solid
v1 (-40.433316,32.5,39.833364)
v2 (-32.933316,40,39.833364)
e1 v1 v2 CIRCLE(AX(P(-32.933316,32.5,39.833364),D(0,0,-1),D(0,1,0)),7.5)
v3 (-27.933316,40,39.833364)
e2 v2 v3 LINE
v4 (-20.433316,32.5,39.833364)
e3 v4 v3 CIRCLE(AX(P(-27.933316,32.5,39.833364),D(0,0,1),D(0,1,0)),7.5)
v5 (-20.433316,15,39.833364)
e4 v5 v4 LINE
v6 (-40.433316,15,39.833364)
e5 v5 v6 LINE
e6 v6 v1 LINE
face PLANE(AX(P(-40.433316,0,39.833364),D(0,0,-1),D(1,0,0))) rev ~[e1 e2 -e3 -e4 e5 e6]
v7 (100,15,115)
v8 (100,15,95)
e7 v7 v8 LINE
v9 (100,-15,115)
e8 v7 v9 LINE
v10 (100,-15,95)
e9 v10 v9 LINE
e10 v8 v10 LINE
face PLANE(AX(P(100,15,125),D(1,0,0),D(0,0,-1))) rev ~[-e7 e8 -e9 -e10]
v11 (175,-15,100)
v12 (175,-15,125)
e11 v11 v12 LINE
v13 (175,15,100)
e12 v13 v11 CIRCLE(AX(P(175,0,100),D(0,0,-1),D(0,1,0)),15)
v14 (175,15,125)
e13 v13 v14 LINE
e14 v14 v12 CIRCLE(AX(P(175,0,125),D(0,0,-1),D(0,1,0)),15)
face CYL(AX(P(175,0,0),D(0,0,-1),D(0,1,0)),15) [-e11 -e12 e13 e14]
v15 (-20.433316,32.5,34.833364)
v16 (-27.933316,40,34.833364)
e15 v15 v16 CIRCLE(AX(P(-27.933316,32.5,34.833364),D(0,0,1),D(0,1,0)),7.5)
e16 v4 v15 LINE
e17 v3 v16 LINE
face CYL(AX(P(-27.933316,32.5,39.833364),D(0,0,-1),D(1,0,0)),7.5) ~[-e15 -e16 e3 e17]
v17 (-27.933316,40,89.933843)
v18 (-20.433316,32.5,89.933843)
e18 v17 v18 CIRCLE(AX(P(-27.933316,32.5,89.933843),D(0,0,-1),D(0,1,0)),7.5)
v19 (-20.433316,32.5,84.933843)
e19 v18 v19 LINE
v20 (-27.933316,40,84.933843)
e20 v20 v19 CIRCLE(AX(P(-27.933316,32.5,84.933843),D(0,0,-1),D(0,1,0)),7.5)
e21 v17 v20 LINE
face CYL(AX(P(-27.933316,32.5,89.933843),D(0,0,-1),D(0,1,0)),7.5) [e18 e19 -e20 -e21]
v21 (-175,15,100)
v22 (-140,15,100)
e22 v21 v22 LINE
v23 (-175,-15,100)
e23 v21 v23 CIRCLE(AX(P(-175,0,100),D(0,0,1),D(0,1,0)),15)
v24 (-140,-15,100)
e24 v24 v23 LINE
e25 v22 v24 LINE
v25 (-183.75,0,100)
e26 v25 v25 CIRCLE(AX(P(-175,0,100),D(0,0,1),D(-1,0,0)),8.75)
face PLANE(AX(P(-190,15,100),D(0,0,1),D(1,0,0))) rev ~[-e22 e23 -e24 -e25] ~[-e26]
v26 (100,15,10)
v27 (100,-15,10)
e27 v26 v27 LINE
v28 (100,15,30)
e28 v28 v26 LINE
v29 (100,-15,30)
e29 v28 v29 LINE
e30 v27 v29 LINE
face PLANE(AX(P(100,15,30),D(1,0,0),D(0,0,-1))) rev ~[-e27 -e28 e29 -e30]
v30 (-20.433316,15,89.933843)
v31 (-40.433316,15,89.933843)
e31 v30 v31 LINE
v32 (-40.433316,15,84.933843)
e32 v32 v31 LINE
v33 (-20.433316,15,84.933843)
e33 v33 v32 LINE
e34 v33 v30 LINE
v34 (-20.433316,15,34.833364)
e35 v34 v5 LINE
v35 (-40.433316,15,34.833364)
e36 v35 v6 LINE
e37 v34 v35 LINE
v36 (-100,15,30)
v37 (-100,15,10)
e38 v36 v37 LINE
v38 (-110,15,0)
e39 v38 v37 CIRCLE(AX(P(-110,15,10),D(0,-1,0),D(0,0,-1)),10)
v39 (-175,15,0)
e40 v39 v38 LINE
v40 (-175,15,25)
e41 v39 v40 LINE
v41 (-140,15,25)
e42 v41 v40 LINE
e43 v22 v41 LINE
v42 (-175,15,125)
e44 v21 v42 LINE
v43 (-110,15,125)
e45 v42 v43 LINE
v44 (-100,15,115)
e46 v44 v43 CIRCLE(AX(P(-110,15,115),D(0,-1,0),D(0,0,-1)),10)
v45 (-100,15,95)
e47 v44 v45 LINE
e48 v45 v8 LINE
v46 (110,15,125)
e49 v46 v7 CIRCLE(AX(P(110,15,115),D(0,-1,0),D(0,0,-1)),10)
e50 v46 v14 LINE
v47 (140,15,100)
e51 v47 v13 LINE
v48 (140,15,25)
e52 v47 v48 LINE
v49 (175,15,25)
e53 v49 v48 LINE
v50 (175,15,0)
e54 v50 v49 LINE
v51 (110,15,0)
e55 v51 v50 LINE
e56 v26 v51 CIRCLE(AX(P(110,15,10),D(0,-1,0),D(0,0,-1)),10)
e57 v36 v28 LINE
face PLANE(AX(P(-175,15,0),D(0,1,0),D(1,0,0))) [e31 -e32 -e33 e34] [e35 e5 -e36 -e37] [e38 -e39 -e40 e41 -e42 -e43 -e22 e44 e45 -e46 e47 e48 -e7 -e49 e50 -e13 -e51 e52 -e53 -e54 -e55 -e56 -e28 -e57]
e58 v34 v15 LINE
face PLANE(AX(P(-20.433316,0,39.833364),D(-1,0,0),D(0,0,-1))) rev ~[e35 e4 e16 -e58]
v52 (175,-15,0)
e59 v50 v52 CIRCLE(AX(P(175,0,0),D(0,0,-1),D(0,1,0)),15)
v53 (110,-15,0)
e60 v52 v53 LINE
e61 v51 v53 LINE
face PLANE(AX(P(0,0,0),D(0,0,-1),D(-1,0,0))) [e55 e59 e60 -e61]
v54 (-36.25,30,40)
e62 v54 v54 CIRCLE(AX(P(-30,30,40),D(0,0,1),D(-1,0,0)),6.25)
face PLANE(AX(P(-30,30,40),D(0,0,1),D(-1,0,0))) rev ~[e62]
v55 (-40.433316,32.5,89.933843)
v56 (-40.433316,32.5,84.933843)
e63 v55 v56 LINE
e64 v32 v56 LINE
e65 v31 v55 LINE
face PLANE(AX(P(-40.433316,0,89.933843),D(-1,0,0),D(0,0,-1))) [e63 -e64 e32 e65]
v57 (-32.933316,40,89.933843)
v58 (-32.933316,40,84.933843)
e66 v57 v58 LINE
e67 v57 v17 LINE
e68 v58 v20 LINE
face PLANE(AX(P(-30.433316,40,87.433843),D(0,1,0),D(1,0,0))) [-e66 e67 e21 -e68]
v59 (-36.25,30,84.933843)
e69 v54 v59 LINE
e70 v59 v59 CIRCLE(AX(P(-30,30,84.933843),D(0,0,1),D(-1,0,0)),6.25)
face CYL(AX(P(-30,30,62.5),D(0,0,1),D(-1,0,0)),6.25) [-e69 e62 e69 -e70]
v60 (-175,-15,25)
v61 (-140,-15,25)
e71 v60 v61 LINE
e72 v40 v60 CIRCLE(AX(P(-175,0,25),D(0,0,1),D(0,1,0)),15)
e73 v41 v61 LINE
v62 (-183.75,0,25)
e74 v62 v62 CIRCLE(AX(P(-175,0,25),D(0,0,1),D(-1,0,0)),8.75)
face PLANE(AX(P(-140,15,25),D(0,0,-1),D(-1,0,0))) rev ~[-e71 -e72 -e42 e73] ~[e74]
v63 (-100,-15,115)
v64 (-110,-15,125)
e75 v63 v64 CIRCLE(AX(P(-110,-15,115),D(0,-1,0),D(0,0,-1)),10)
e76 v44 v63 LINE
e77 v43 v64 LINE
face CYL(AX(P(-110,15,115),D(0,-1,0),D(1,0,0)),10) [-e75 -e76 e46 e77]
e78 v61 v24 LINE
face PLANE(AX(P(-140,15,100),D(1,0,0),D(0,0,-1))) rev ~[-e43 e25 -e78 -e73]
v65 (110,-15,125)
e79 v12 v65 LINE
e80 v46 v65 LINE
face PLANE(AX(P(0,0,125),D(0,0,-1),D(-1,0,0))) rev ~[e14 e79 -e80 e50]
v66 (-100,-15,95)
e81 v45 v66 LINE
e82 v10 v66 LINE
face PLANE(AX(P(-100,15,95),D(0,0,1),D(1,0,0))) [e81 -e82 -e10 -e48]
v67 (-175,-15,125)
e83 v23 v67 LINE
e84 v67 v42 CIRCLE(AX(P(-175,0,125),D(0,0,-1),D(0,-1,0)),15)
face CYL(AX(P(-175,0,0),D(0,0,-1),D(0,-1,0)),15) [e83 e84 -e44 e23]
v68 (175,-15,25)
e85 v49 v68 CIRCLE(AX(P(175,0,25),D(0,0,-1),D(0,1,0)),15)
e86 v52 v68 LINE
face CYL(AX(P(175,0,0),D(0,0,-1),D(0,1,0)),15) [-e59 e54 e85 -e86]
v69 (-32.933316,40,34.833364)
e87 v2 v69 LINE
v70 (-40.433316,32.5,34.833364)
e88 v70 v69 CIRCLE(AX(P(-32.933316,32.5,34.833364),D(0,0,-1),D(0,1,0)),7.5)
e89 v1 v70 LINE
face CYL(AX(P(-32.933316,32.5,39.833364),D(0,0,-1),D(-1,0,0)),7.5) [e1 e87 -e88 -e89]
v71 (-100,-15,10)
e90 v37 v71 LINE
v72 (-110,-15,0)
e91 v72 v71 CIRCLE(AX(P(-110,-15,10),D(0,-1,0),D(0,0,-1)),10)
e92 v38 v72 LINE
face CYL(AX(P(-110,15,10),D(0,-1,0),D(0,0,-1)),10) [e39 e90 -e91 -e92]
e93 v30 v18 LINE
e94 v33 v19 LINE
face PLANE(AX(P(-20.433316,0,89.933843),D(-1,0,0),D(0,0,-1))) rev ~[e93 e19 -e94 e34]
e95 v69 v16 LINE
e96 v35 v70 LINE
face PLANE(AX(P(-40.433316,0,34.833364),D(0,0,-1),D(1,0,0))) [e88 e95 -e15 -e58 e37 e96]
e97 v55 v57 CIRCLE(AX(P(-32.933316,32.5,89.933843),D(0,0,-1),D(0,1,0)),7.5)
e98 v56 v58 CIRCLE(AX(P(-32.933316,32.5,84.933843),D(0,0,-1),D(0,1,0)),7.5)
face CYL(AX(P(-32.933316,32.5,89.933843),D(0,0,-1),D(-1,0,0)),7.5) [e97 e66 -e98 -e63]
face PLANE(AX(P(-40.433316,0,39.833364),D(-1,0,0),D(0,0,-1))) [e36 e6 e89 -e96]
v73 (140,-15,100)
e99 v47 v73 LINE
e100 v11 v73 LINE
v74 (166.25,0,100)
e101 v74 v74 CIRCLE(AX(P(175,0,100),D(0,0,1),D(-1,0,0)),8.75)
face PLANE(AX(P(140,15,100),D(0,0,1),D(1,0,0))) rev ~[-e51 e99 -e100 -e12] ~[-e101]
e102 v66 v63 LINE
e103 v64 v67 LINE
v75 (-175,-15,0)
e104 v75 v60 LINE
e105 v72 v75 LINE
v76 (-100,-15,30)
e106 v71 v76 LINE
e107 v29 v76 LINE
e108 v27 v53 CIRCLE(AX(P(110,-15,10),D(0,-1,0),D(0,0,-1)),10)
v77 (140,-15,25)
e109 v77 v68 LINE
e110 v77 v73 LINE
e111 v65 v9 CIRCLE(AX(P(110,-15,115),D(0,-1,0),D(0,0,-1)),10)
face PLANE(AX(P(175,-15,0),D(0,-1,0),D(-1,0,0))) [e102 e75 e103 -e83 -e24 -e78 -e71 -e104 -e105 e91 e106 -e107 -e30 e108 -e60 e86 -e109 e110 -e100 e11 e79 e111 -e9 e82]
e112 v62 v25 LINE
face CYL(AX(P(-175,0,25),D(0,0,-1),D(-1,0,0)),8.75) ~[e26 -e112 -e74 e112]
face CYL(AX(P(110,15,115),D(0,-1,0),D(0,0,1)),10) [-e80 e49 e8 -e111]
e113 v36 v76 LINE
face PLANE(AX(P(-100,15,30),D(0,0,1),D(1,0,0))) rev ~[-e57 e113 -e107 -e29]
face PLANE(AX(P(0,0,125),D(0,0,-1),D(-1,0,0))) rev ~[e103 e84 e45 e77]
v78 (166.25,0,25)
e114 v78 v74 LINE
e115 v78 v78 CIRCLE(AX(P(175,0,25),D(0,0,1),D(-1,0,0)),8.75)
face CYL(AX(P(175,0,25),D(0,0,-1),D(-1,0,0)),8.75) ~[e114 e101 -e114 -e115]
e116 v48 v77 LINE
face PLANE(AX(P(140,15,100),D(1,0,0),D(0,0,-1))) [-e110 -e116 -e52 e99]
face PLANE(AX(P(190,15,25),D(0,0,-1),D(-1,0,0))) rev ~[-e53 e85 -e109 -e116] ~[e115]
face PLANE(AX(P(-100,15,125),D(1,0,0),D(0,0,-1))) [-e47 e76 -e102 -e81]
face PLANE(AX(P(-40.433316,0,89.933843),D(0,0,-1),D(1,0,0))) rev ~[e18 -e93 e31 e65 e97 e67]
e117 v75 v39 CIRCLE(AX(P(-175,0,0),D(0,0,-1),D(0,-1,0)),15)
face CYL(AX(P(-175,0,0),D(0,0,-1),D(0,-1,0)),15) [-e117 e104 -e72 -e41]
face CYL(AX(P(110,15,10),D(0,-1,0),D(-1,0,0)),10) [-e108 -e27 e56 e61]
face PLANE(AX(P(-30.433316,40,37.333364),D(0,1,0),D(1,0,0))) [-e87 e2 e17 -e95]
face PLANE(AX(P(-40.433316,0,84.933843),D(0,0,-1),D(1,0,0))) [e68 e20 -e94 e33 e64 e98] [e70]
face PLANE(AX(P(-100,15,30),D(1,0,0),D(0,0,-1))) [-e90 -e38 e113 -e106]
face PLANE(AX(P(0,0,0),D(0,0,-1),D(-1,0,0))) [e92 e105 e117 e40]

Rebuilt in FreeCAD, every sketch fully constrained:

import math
import FreeCAD as App
import Part
import Sketcher
Q = App.Units.Quantity


def edges_at(feature, points):
    """Names of the edges that pass closest to the given points."""
    edges = feature.Shape.Edges
    near = lambda p: min(range(len(edges)), key=lambda i: edges[i].distToShape(Part.Vertex(*p))[0])
    return sorted({f"Edge{near(p) + 1}" for p in points})

doc = App.newDocument("Part")
body = doc.addObject("PartDesign::Body", "Body")

# Sketch on XY plane
sketch1 = body.newObject("Sketcher::SketchObject", "Sketch")
sketch1.AttachmentSupport = (doc.getObject("XY_Plane"), [""])
sketch1.MapMode = "FlatFace"
sketch1.addGeometry(Part.LineSegment(App.Vector(175, 15, 0), App.Vector(-175, 15, 0)), False)
sketch1.addGeometry(Part.ArcOfCircle(Part.Circle(App.Vector(-175, 0, 0), App.Vector(0, 0, 1), 15), math.radians(90), math.radians(270)), False)
sketch1.addGeometry(Part.LineSegment(App.Vector(-175, -15, 0), App.Vector(175, -15, 0)), False)
sketch1.addGeometry(Part.ArcOfCircle(Part.Circle(App.Vector(175, 0, 0), App.Vector(0, 0, 1), 15), math.radians(-90), math.radians(90)), False)
sketch1.addConstraint(Sketcher.Constraint("Tangent", 0, 2, 1, 1))
sketch1.addConstraint(Sketcher.Constraint("Tangent", 1, 2, 2, 1))
sketch1.addConstraint(Sketcher.Constraint("Tangent", 2, 2, 3, 1))
sketch1.addConstraint(Sketcher.Constraint("Tangent", 3, 2, 0, 1))
sketch1.addConstraint(Sketcher.Constraint("Horizontal", 0))
sketch1.addConstraint(Sketcher.Constraint("Horizontal", 2))
sketch1.addConstraint(Sketcher.Constraint("Symmetric", 1, 3, 3, 3, -1, 1))
sketch1.addConstraint(Sketcher.Constraint("Radius", 1, Q("15 mm")))
sketch1.addConstraint(Sketcher.Constraint("DistanceX", 0, 2, 0, 1, Q("350 mm")))
pad1 = body.newObject("PartDesign::Pad", "Pad")
pad1.Profile = sketch1
pad1.Length = 125

# Sketch on XZ plane
sketch2 = body.newObject("Sketcher::SketchObject", "Sketch001")
sketch2.AttachmentSupport = (doc.getObject("XZ_Plane"), [""])
sketch2.MapMode = "FlatFace"
sketch2.AttachmentOffset = App.Placement(App.Vector(0, 0, -15), App.Rotation())
sketch2.addGeometry(Part.LineSegment(App.Vector(-140, 100, 0), App.Vector(-140, 25, 0)), False)
sketch2.addGeometry(Part.LineSegment(App.Vector(-140, 25, 0), App.Vector(-190, 25, 0)), False)
sketch2.addGeometry(Part.LineSegment(App.Vector(-190, 25, 0), App.Vector(-190, 100, 0)), False)
sketch2.addGeometry(Part.LineSegment(App.Vector(-190, 100, 0), App.Vector(-140, 100, 0)), False)
sketch2.addGeometry(Part.LineSegment(App.Vector(190, 100, 0), App.Vector(190, 25, 0)), False)
sketch2.addGeometry(Part.LineSegment(App.Vector(190, 25, 0), App.Vector(140, 25, 0)), False)
sketch2.addGeometry(Part.LineSegment(App.Vector(140, 25, 0), App.Vector(140, 100, 0)), False)
sketch2.addGeometry(Part.LineSegment(App.Vector(140, 100, 0), App.Vector(190, 100, 0)), False)
sketch2.addConstraint(Sketcher.Constraint("Coincident", 0, 2, 1, 1))
sketch2.addConstraint(Sketcher.Constraint("Coincident", 1, 2, 2, 1))
sketch2.addConstraint(Sketcher.Constraint("Coincident", 2, 2, 3, 1))
sketch2.addConstraint(Sketcher.Constraint("Coincident", 3, 2, 0, 1))
sketch2.addConstraint(Sketcher.Constraint("Coincident", 4, 2, 5, 1))
sketch2.addConstraint(Sketcher.Constraint("Coincident", 5, 2, 6, 1))
sketch2.addConstraint(Sketcher.Constraint("Coincident", 6, 2, 7, 1))
sketch2.addConstraint(Sketcher.Constraint("Coincident", 7, 2, 4, 1))
sketch2.addConstraint(Sketcher.Constraint("Vertical", 0))
sketch2.addConstraint(Sketcher.Constraint("Horizontal", 1))
sketch2.addConstraint(Sketcher.Constraint("Vertical", 2))
sketch2.addConstraint(Sketcher.Constraint("Horizontal", 3))
sketch2.addConstraint(Sketcher.Constraint("Vertical", 4))
sketch2.addConstraint(Sketcher.Constraint("Horizontal", 5))
sketch2.addConstraint(Sketcher.Constraint("Vertical", 6))
sketch2.addConstraint(Sketcher.Constraint("Horizontal", 7))
sketch2.addConstraint(Sketcher.Constraint("Symmetric", 1, 2, 4, 2, -2))
sketch2.addConstraint(Sketcher.Constraint("Symmetric", 3, 2, 6, 2, -2))
sketch2.addConstraint(Sketcher.Constraint("DistanceX", 1, 2, 1, 1, Q("50 mm")))
sketch2.addConstraint(Sketcher.Constraint("DistanceY", 0, 2, 0, 1, Q("75 mm")))
sketch2.addConstraint(Sketcher.Constraint("DistanceX", 0, 2, -1, 1, Q("140 mm")))
sketch2.addConstraint(Sketcher.Constraint("DistanceY", -1, 1, 0, 2, Q("25 mm")))
pocket1 = body.newObject("PartDesign::Pocket", "Pocket")
pocket1.Profile = sketch2
pocket1.Length = 100
pocket1.Reversed = True

# Sketch on XY plane
sketch3 = body.newObject("Sketcher::SketchObject", "Sketch002")
sketch3.AttachmentSupport = (doc.getObject("XY_Plane"), [""])
sketch3.MapMode = "FlatFace"
sketch3.AttachmentOffset = App.Placement(App.Vector(0, 0, 25), App.Rotation())
sketch3.addGeometry(Part.Circle(App.Vector(-175, 0, 0), App.Vector(0, 0, 1), 9), False)
sketch3.addGeometry(Part.Circle(App.Vector(175, 0, 0), App.Vector(0, 0, 1), 9), False)
sketch3.addConstraint(Sketcher.Constraint("Equal", 0, 1))
sketch3.addConstraint(Sketcher.Constraint("Symmetric", 0, 3, 1, 3, -1, 1))
sketch3.addConstraint(Sketcher.Constraint("PointOnObject", 0, 3, -1))
sketch3.addConstraint(Sketcher.Constraint("Diameter", 0, Q("17.5 mm")))
sketch3.addConstraint(Sketcher.Constraint("DistanceX", 0, 3, -1, 1, Q("175 mm")))
pad2 = body.newObject("PartDesign::Pad", "Pad001")
pad2.Profile = sketch3
pad2.Length = 75

# Sketch on XZ plane
sketch4 = body.newObject("Sketcher::SketchObject", "Sketch003")
sketch4.AttachmentSupport = (doc.getObject("XZ_Plane"), [""])
sketch4.MapMode = "FlatFace"
sketch4.AttachmentOffset = App.Placement(App.Vector(0, 0, -15), App.Rotation())
sketch4.addGeometry(Part.LineSegment(App.Vector(-100, 0, 0), App.Vector(-100, 30, 0)), False)
sketch4.addGeometry(Part.LineSegment(App.Vector(-100, 30, 0), App.Vector(100, 30, 0)), False)
sketch4.addGeometry(Part.LineSegment(App.Vector(100, 30, 0), App.Vector(100, 0, 0)), False)
sketch4.addGeometry(Part.LineSegment(App.Vector(100, 0, 0), App.Vector(-100, 0, 0)), False)
sketch4.addGeometry(Part.LineSegment(App.Vector(-100, 95, 0), App.Vector(-100, 125, 0)), False)
sketch4.addGeometry(Part.LineSegment(App.Vector(-100, 125, 0), App.Vector(100, 125, 0)), False)
sketch4.addGeometry(Part.LineSegment(App.Vector(100, 125, 0), App.Vector(100, 95, 0)), False)
sketch4.addGeometry(Part.LineSegment(App.Vector(100, 95, 0), App.Vector(-100, 95, 0)), False)
sketch4.addConstraint(Sketcher.Constraint("Coincident", 0, 2, 1, 1))
sketch4.addConstraint(Sketcher.Constraint("Coincident", 1, 2, 2, 1))
sketch4.addConstraint(Sketcher.Constraint("Coincident", 2, 2, 3, 1))
sketch4.addConstraint(Sketcher.Constraint("Coincident", 3, 2, 0, 1))
sketch4.addConstraint(Sketcher.Constraint("Coincident", 4, 2, 5, 1))
sketch4.addConstraint(Sketcher.Constraint("Coincident", 5, 2, 6, 1))
sketch4.addConstraint(Sketcher.Constraint("Coincident", 6, 2, 7, 1))
sketch4.addConstraint(Sketcher.Constraint("Coincident", 7, 2, 4, 1))
sketch4.addConstraint(Sketcher.Constraint("Vertical", 0))
sketch4.addConstraint(Sketcher.Constraint("Horizontal", 1))
sketch4.addConstraint(Sketcher.Constraint("Vertical", 2))
sketch4.addConstraint(Sketcher.Constraint("Horizontal", 3))
sketch4.addConstraint(Sketcher.Constraint("Vertical", 4))
sketch4.addConstraint(Sketcher.Constraint("Horizontal", 5))
sketch4.addConstraint(Sketcher.Constraint("Vertical", 6))
sketch4.addConstraint(Sketcher.Constraint("Horizontal", 7))
sketch4.addConstraint(Sketcher.Constraint("Symmetric", 2, 2, 3, 2, -1, 1))
sketch4.addConstraint(Sketcher.Constraint("Vertical", 3, 2, 4, 2))
sketch4.addConstraint(Sketcher.Constraint("Vertical", 2, 2, 5, 2))
sketch4.addConstraint(Sketcher.Constraint("Equal", 2, 4))
sketch4.addConstraint(Sketcher.Constraint("DistanceX", 1, 1, 1, 2, Q("200 mm")))
sketch4.addConstraint(Sketcher.Constraint("DistanceY", 0, 1, 0, 2, Q("30 mm")))
sketch4.addConstraint(Sketcher.Constraint("DistanceY", -1, 1, 4, 2, Q("125 mm")))
pocket2 = body.newObject("PartDesign::Pocket", "Pocket001")
pocket2.Profile = sketch4
pocket2.Type = "ThroughAll"
pocket2.Reversed = True
doc.recompute()

fillet = body.newObject("PartDesign::Fillet", "Fillet")
fillet.Base = (pocket2, edges_at(pocket2, [
    (-100, 0, 0),
    (100, 0, 0),
    (100, 0, 125),
    (-100, 0, 125),
]))
fillet.Radius = 10
body2 = doc.addObject("PartDesign::Body", "Body001")

# Sketch on XY plane
sketch5 = body2.newObject("Sketcher::SketchObject", "Sketch004")
sketch5.AttachmentSupport = (doc.getObject("XY_Plane001"), [""])
sketch5.MapMode = "FlatFace"
sketch5.AttachmentOffset = App.Placement(App.Vector(0, 0, 62.5), App.Rotation())
sketch5.addGeometry(Part.Circle(App.Vector(-30, 30, 0), App.Vector(0, 0, 1), 6), False)
sketch5.addConstraint(Sketcher.Constraint("Diameter", 0, Q("12.5 mm")))
sketch5.addConstraint(Sketcher.Constraint("DistanceX", 0, 3, -1, 1, Q("30 mm")))
sketch5.addConstraint(Sketcher.Constraint("DistanceY", -1, 1, 0, 3, Q("30 mm")))
pad3 = body2.newObject("PartDesign::Pad", "Pad002")
pad3.Profile = sketch5
pad3.Length = 45
pad3.Midplane = True
body.AllowCompound = True
doc.recompute()

boolean = body.newObject("PartDesign::Boolean", "Boolean")
boolean.Type = "Fuse"
boolean.addObjects([body2])

# Sketch on XZ plane
sketch6 = body.newObject("Sketcher::SketchObject", "Sketch005")
sketch6.AttachmentSupport = (doc.getObject("XZ_Plane"), [""])
sketch6.MapMode = "FlatFace"
sketch6.addGeometry(Part.LineSegment(App.Vector(-40, 85, 0), App.Vector(-40, 90, 0)), False)
sketch6.addGeometry(Part.LineSegment(App.Vector(-40, 90, 0), App.Vector(-20, 90, 0)), False)
sketch6.addGeometry(Part.LineSegment(App.Vector(-20, 90, 0), App.Vector(-20, 85, 0)), False)
sketch6.addGeometry(Part.LineSegment(App.Vector(-20, 85, 0), App.Vector(-40, 85, 0)), False)
sketch6.addGeometry(Part.LineSegment(App.Vector(-40, 35, 0), App.Vector(-40, 40, 0)), False)
sketch6.addGeometry(Part.LineSegment(App.Vector(-40, 40, 0), App.Vector(-20, 40, 0)), False)
sketch6.addGeometry(Part.LineSegment(App.Vector(-20, 40, 0), App.Vector(-20, 35, 0)), False)
sketch6.addGeometry(Part.LineSegment(App.Vector(-20, 35, 0), App.Vector(-40, 35, 0)), False)
sketch6.addConstraint(Sketcher.Constraint("Coincident", 0, 2, 1, 1))
sketch6.addConstraint(Sketcher.Constraint("Coincident", 1, 2, 2, 1))
sketch6.addConstraint(Sketcher.Constraint("Coincident", 2, 2, 3, 1))
sketch6.addConstraint(Sketcher.Constraint("Coincident", 3, 2, 0, 1))
sketch6.addConstraint(Sketcher.Constraint("Coincident", 4, 2, 5, 1))
sketch6.addConstraint(Sketcher.Constraint("Coincident", 5, 2, 6, 1))
sketch6.addConstraint(Sketcher.Constraint("Coincident", 6, 2, 7, 1))
sketch6.addConstraint(Sketcher.Constraint("Coincident", 7, 2, 4, 1))
sketch6.addConstraint(Sketcher.Constraint("Vertical", 0))
sketch6.addConstraint(Sketcher.Constraint("Horizontal", 1))
sketch6.addConstraint(Sketcher.Constraint("Vertical", 2))
sketch6.addConstraint(Sketcher.Constraint("Horizontal", 3))
sketch6.addConstraint(Sketcher.Constraint("Vertical", 4))
sketch6.addConstraint(Sketcher.Constraint("Horizontal", 5))
sketch6.addConstraint(Sketcher.Constraint("Vertical", 6))
sketch6.addConstraint(Sketcher.Constraint("Horizontal", 7))
sketch6.addConstraint(Sketcher.Constraint("Vertical", 3, 2, 4, 2))
sketch6.addConstraint(Sketcher.Constraint("Vertical", 2, 2, 5, 2))
sketch6.addConstraint(Sketcher.Constraint("Equal", 2, 4))
sketch6.addConstraint(Sketcher.Constraint("DistanceX", 1, 1, 1, 2, Q("20 mm")))
sketch6.addConstraint(Sketcher.Constraint("DistanceY", 0, 1, 0, 2, Q("5 mm")))
sketch6.addConstraint(Sketcher.Constraint("DistanceY", 4, 2, 3, 2, Q("45.100479 mm")))
sketch6.addConstraint(Sketcher.Constraint("DistanceX", 0, 2, -1, 1, Q("40.433316 mm")))
sketch6.addConstraint(Sketcher.Constraint("DistanceY", -1, 1, 0, 2, Q("89.933843 mm")))
pad4 = body.newObject("PartDesign::Pad", "Pad003")
pad4.Profile = sketch6
pad4.Length = 40
pad4.Reversed = True
doc.recompute()

fillet2 = body.newObject("PartDesign::Fillet", "Fillet001")
fillet2.Base = (pad4, edges_at(pad4, [
    (-20.433, 40, 87.434),
    (-40.433, 40, 87.434),
    (-40.433, 40, 37.333),
    (-20.433, 40, 37.333),
]))
fillet2.Radius = 7.5

doc.recompute()
